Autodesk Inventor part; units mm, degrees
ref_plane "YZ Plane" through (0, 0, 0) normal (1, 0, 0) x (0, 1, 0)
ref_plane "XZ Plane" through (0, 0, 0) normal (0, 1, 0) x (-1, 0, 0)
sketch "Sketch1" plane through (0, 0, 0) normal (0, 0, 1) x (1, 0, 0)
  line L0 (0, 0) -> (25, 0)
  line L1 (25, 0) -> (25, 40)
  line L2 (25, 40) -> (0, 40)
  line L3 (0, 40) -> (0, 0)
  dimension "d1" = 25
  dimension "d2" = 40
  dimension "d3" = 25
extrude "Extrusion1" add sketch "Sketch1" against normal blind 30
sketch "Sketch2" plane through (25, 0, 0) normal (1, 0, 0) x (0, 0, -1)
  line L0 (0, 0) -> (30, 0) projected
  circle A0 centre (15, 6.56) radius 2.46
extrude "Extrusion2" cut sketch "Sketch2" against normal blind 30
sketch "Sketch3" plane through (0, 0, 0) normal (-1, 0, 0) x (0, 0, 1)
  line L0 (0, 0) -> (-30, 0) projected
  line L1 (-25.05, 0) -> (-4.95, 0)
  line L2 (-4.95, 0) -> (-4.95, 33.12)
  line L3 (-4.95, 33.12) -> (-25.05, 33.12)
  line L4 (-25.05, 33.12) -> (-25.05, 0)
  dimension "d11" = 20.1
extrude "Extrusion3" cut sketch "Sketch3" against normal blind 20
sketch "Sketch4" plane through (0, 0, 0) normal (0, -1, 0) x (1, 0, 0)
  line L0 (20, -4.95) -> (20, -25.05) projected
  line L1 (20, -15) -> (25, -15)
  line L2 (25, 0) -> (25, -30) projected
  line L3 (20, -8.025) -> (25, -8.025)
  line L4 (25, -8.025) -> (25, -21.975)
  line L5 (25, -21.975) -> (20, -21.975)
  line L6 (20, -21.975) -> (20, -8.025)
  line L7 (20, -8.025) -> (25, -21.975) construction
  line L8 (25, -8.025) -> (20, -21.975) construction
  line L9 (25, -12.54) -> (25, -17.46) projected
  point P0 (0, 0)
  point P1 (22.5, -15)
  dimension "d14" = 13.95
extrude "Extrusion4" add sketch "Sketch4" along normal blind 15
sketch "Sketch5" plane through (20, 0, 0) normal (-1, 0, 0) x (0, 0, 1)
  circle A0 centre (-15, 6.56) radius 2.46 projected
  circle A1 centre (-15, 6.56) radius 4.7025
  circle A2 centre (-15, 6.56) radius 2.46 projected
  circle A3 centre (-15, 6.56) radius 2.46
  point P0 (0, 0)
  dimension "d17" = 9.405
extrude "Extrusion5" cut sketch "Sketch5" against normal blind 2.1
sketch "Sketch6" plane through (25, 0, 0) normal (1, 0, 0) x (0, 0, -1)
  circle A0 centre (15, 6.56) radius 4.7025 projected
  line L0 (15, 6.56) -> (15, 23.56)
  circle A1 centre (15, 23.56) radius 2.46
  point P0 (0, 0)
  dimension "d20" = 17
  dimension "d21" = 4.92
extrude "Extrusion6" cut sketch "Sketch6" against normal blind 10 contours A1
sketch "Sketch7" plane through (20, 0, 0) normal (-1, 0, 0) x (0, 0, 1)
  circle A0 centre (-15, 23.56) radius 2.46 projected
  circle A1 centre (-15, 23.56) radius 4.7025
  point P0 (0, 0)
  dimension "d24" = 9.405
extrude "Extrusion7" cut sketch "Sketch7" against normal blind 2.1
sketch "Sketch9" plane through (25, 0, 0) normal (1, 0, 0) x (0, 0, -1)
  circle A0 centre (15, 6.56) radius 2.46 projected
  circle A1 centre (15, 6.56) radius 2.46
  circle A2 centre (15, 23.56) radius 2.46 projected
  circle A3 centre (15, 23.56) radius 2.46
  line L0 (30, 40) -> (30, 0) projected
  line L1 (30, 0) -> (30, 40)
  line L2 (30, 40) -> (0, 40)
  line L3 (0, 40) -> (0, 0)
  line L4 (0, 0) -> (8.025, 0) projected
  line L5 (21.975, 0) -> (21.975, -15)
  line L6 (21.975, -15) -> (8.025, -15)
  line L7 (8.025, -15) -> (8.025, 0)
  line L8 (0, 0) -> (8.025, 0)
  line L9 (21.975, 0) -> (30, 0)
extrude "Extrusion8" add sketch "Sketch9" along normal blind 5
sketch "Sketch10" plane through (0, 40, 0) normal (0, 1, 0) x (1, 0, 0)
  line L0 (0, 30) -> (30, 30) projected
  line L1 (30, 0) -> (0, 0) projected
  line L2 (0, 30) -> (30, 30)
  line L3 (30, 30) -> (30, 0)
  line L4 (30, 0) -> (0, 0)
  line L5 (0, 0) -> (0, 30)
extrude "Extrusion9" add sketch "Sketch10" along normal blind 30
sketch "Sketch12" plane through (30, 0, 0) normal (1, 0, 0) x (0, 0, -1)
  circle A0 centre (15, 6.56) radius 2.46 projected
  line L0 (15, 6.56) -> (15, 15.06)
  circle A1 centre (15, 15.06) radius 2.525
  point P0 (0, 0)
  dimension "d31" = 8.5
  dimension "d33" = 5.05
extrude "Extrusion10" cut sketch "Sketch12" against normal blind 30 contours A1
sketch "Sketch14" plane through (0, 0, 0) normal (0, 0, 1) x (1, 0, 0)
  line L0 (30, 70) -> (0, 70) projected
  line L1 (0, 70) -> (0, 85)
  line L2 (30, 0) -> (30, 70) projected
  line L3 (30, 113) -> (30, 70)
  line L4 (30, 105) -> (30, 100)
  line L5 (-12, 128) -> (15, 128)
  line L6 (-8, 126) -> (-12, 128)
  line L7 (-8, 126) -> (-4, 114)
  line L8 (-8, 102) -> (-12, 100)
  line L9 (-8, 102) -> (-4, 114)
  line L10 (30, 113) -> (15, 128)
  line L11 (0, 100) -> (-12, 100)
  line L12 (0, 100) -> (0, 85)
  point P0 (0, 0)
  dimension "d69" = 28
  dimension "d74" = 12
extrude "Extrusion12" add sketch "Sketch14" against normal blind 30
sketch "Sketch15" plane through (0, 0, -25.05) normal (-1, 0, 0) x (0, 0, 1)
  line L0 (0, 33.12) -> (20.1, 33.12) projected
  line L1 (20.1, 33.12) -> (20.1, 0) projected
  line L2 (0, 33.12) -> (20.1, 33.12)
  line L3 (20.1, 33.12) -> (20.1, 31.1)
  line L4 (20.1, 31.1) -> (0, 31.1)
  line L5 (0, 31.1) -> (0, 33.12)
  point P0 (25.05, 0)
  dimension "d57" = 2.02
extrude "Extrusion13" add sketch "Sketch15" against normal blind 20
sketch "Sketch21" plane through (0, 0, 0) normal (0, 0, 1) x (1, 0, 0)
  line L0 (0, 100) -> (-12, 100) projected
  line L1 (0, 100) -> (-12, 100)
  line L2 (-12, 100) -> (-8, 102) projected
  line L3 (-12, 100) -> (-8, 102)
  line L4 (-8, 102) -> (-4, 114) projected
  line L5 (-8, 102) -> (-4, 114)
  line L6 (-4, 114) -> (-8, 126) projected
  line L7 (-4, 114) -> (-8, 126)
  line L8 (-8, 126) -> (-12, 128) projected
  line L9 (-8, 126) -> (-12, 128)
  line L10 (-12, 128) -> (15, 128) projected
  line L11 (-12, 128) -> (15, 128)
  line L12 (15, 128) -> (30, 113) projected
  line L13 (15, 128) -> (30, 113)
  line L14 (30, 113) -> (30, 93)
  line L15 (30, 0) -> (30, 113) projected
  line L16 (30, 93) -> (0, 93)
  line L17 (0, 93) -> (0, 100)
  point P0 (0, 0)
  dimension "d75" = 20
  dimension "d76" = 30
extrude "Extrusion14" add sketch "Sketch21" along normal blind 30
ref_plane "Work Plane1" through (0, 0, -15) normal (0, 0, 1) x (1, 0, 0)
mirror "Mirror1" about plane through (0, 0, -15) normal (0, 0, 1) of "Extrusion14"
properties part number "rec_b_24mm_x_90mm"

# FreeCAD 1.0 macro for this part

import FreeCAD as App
import Part
import Sketcher

V = App.Vector
Q = App.Units.Quantity

doc = App.newDocument("Part")
body = doc.addObject("PartDesign::Body", "Body")

# Sketch on XY plane
sketch1 = body.newObject("Sketcher::SketchObject", "Sketch")
sketch1.AttachmentSupport = (doc.getObject("XY_Plane"), [""])
sketch1.MapMode = "FlatFace"
sketch1.addGeometry([
    Part.LineSegment(V(0, 40, 0), V(0, 0, 0)),
    Part.LineSegment(V(0, 0, 0), V(25, 0, 0)),
    Part.LineSegment(V(25, 0, 0), V(25, 40, 0)),
    Part.LineSegment(V(25, 40, 0), V(0, 40, 0)),
], False)
sketch1.addConstraint([
    Sketcher.Constraint("Coincident", 0, 2, 1, 1),
    Sketcher.Constraint("Coincident", 1, 2, 2, 1),
    Sketcher.Constraint("Coincident", 2, 2, 3, 1),
    Sketcher.Constraint("Coincident", 3, 2, 0, 1),
    Sketcher.Constraint("Vertical", 0),
    Sketcher.Constraint("Horizontal", 1),
    Sketcher.Constraint("Vertical", 2),
    Sketcher.Constraint("Horizontal", 3),
    Sketcher.Constraint("Coincident", 0, 2, -1, 1),
    Sketcher.Constraint("DistanceX", 1, 1, 1, 2, Q("25 mm")),
    Sketcher.Constraint("DistanceY", 0, 2, 0, 1, Q("40 mm")),
])
pad1 = body.newObject("PartDesign::Pad", "Pad")
pad1.Profile = sketch1
pad1.Length = 30
pad1.Reversed = True

# Sketch on YZ plane
sketch2 = body.newObject("Sketcher::SketchObject", "Sketch001")
sketch2.AttachmentSupport = (doc.getObject("YZ_Plane"), [""])
sketch2.MapMode = "FlatFace"
sketch2.AttachmentOffset = App.Placement(V(0, 0, 25), App.Rotation())
sketch2.addGeometry(Part.Circle(V(6.6, -15, 0), V(0, 0, 1), 2.5), False)
sketch2.addConstraint([
    Sketcher.Constraint("Diameter", 0, Q("4.92 mm")),
    Sketcher.Constraint("DistanceY", 0, 3, -1, 1, Q("15 mm")),
    Sketcher.Constraint("DistanceX", -1, 1, 0, 3, Q("6.56 mm")),
])
pocket1 = body.newObject("PartDesign::Pocket", "Pocket")
pocket1.Profile = sketch2
pocket1.Length = 30

# Sketch on YZ plane
sketch3 = body.newObject("Sketcher::SketchObject", "Sketch002")
sketch3.AttachmentSupport = (doc.getObject("YZ_Plane"), [""])
sketch3.MapMode = "FlatFace"
sketch3.addGeometry([
    Part.LineSegment(V(0, -25, 0), V(0, -5, 0)),
    Part.LineSegment(V(0, -5, 0), V(33, -5, 0)),
    Part.LineSegment(V(33, -5, 0), V(33, -25, 0)),
    Part.LineSegment(V(33, -25, 0), V(0, -25, 0)),
], False)
sketch3.addConstraint([
    Sketcher.Constraint("Coincident", 0, 2, 1, 1),
    Sketcher.Constraint("Coincident", 1, 2, 2, 1),
    Sketcher.Constraint("Coincident", 2, 2, 3, 1),
    Sketcher.Constraint("Coincident", 3, 2, 0, 1),
    Sketcher.Constraint("Vertical", 0),
    Sketcher.Constraint("Horizontal", 1),
    Sketcher.Constraint("Vertical", 2),
    Sketcher.Constraint("Horizontal", 3),
    Sketcher.Constraint("PointOnObject", 0, 2, -2),
    Sketcher.Constraint("DistanceY", 0, 1, 0, 2, Q("20.1 mm")),
    Sketcher.Constraint("DistanceX", 1, 1, 1, 2, Q("33.12 mm")),
    Sketcher.Constraint("DistanceY", 0, 2, -1, 1, Q("4.95 mm")),
])
pocket2 = body.newObject("PartDesign::Pocket", "Pocket001")
pocket2.Profile = sketch3
pocket2.Length = 20
pocket2.Reversed = True

# Sketch on XZ plane
sketch4 = body.newObject("Sketcher::SketchObject", "Sketch003")
sketch4.AttachmentSupport = (doc.getObject("XZ_Plane"), [""])
sketch4.MapMode = "FlatFace"
sketch4.addGeometry([
    Part.LineSegment(V(25, -8, 0), V(20, -8, 0)),
    Part.LineSegment(V(20, -8, 0), V(20, -22, 0)),
    Part.LineSegment(V(20, -22, 0), V(25, -22, 0)),
    Part.LineSegment(V(25, -22, 0), V(25, -8, 0)),
], False)
sketch4.addConstraint([
    Sketcher.Constraint("Coincident", 0, 2, 1, 1),
    Sketcher.Constraint("Coincident", 1, 2, 2, 1),
    Sketcher.Constraint("Coincident", 2, 2, 3, 1),
    Sketcher.Constraint("Coincident", 3, 2, 0, 1),
    Sketcher.Constraint("Horizontal", 0),
    Sketcher.Constraint("Vertical", 1),
    Sketcher.Constraint("Horizontal", 2),
    Sketcher.Constraint("Vertical", 3),
    Sketcher.Constraint("DistanceY", 1, 2, 1, 1, Q("13.95 mm")),
    Sketcher.Constraint("DistanceX", 0, 2, 0, 1, Q("5 mm")),
    Sketcher.Constraint("DistanceX", -1, 1, 0, 2, Q("20 mm")),
    Sketcher.Constraint("DistanceY", 0, 2, -1, 1, Q("8.025 mm")),
])
pad2 = body.newObject("PartDesign::Pad", "Pad001")
pad2.Profile = sketch4
pad2.Length = 15

# Sketch on YZ plane
sketch5 = body.newObject("Sketcher::SketchObject", "Sketch004")
sketch5.AttachmentSupport = (doc.getObject("YZ_Plane"), [""])
sketch5.MapMode = "FlatFace"
sketch5.AttachmentOffset = App.Placement(V(0, 0, 20), App.Rotation())
sketch5.addGeometry([
    Part.Circle(V(6.6, -15, 0), V(0, 0, 1), 4.7),
    Part.Circle(V(6.6, -15, 0), V(0, 0, 1), 2.5),
], False)
sketch5.addConstraint([
    Sketcher.Constraint("Coincident", 1, 3, 0, 3),
    Sketcher.Constraint("Diameter", 0, Q("9.405 mm")),
    Sketcher.Constraint("Diameter", 1, Q("4.92 mm")),
    Sketcher.Constraint("DistanceY", 0, 3, -1, 1, Q("15 mm")),
    Sketcher.Constraint("DistanceX", -1, 1, 0, 3, Q("6.56 mm")),
])
pocket3 = body.newObject("PartDesign::Pocket", "Pocket002")
pocket3.Profile = sketch5
pocket3.Length = 2.1
pocket3.Reversed = True

# Sketch on YZ plane
sketch6 = body.newObject("Sketcher::SketchObject", "Sketch005")
sketch6.AttachmentSupport = (doc.getObject("YZ_Plane"), [""])
sketch6.MapMode = "FlatFace"
sketch6.AttachmentOffset = App.Placement(V(0, 0, 25), App.Rotation())
sketch6.addGeometry(Part.Circle(V(23.6, -15, 0), V(0, 0, 1), 2.5), False)
sketch6.addConstraint([
    Sketcher.Constraint("Diameter", 0, Q("4.92 mm")),
    Sketcher.Constraint("DistanceY", 0, 3, -1, 1, Q("15 mm")),
    Sketcher.Constraint("DistanceX", -1, 1, 0, 3, Q("23.56 mm")),
])
pocket4 = body.newObject("PartDesign::Pocket", "Pocket003")
pocket4.Profile = sketch6
pocket4.Length = 10

# Sketch on YZ plane
sketch7 = body.newObject("Sketcher::SketchObject", "Sketch006")
sketch7.AttachmentSupport = (doc.getObject("YZ_Plane"), [""])
sketch7.MapMode = "FlatFace"
sketch7.AttachmentOffset = App.Placement(V(0, 0, 20), App.Rotation())
sketch7.addGeometry([
    Part.Circle(V(23.6, -15, 0), V(0, 0, 1), 4.7),
    Part.Circle(V(23.6, -15, 0), V(0, 0, 1), 2.5),
], False)
sketch7.addConstraint([
    Sketcher.Constraint("Coincident", 1, 3, 0, 3),
    Sketcher.Constraint("Diameter", 0, Q("9.405 mm")),
    Sketcher.Constraint("Diameter", 1, Q("4.92 mm")),
    Sketcher.Constraint("DistanceY", 0, 3, -1, 1, Q("15 mm")),
    Sketcher.Constraint("DistanceX", -1, 1, 0, 3, Q("23.56 mm")),
])
pocket5 = body.newObject("PartDesign::Pocket", "Pocket004")
pocket5.Profile = sketch7
pocket5.Length = 2.1
pocket5.Reversed = True

# Sketch on YZ plane
sketch8 = body.newObject("Sketcher::SketchObject", "Sketch007")
sketch8.AttachmentSupport = (doc.getObject("YZ_Plane"), [""])
sketch8.MapMode = "FlatFace"
sketch8.AttachmentOffset = App.Placement(V(0, 0, 25), App.Rotation())
sketch8.addGeometry([
    Part.LineSegment(V(0, -30, 0), V(40, -30, 0)),  # 0
    Part.LineSegment(V(40, -30, 0), V(40, 0, 0)),  # 1
    Part.LineSegment(V(40, 0, 0), V(0, 0, 0)),  # 2
    Part.LineSegment(V(0, 0, 0), V(0, -8, 0)),  # 3
    Part.LineSegment(V(0, -8, 0), V(-15, -8, 0)),  # 4
    Part.LineSegment(V(-15, -8, 0), V(-15, -22, 0)),  # 5
    Part.LineSegment(V(-15, -22, 0), V(0, -22, 0)),  # 6
    Part.LineSegment(V(0, -22, 0), V(0, -30, 0)),  # 7
    Part.Circle(V(6.6, -15, 0), V(0, 0, 1), 2.5),  # 8
    Part.Circle(V(23.6, -15, 0), V(0, 0, 1), 2.5),  # 9
], False)
sketch8.addConstraint([
    Sketcher.Constraint("Coincident", 0, 2, 1, 1),
    Sketcher.Constraint("Coincident", 1, 2, 2, 1),
    Sketcher.Constraint("Coincident", 2, 2, 3, 1),
    Sketcher.Constraint("Coincident", 3, 2, 4, 1),
    Sketcher.Constraint("Coincident", 4, 2, 5, 1),
    Sketcher.Constraint("Coincident", 5, 2, 6, 1),
    Sketcher.Constraint("Coincident", 6, 2, 7, 1),
    Sketcher.Constraint("Coincident", 7, 2, 0, 1),
    Sketcher.Constraint("Horizontal", 0),
    Sketcher.Constraint("Vertical", 1),
    Sketcher.Constraint("Horizontal", 2),
    Sketcher.Constraint("Vertical", 3),
    Sketcher.Constraint("Horizontal", 4),
    Sketcher.Constraint("Vertical", 5),
    Sketcher.Constraint("Horizontal", 6),
    Sketcher.Constraint("Vertical", 7),
    Sketcher.Constraint("Coincident", 2, 2, -1, 1),
    Sketcher.Constraint("Equal", 8, 9),
    Sketcher.Constraint("PointOnObject", 6, 2, -2),
    Sketcher.Constraint("Horizontal", 8, 3, 9, 3),
    Sketcher.Constraint("Equal", 3, 7),
    Sketcher.Constraint("Diameter", 8, Q("4.92 mm")),
    Sketcher.Constraint("DistanceX", 0, 1, 0, 2, Q("40 mm")),
    Sketcher.Constraint("DistanceX", 4, 2, 4, 1, Q("15 mm")),
    Sketcher.Constraint("DistanceY", 1, 1, 1, 2, Q("30 mm")),
    Sketcher.Constraint("DistanceY", 8, 3, -1, 1, Q("15 mm")),
    Sketcher.Constraint("DistanceX", 8, 3, 9, 3, Q("17 mm")),
    Sketcher.Constraint("DistanceY", 5, 2, 5, 1, Q("13.95 mm")),
    Sketcher.Constraint("DistanceX", -1, 1, 8, 3, Q("6.56 mm")),
])
pad3 = body.newObject("PartDesign::Pad", "Pad002")
pad3.Profile = sketch8
pad3.Length = 5

# Sketch on XZ plane
sketch9 = body.newObject("Sketcher::SketchObject", "Sketch008")
sketch9.AttachmentSupport = (doc.getObject("XZ_Plane"), [""])
sketch9.MapMode = "FlatFace"
sketch9.AttachmentOffset = App.Placement(V(0, 0, -40), App.Rotation())
sketch9.addGeometry([
    Part.LineSegment(V(30, -30, 0), V(0, -30, 0)),
    Part.LineSegment(V(0, -30, 0), V(0, 0, 0)),
    Part.LineSegment(V(0, 0, 0), V(30, 0, 0)),
    Part.LineSegment(V(30, 0, 0), V(30, -30, 0)),
], False)
sketch9.addConstraint([
    Sketcher.Constraint("Coincident", 0, 2, 1, 1),
    Sketcher.Constraint("Coincident", 1, 2, 2, 1),
    Sketcher.Constraint("Coincident", 2, 2, 3, 1),
    Sketcher.Constraint("Coincident", 3, 2, 0, 1),
    Sketcher.Constraint("Horizontal", 0),
    Sketcher.Constraint("Vertical", 1),
    Sketcher.Constraint("Horizontal", 2),
    Sketcher.Constraint("Vertical", 3),
    Sketcher.Constraint("Coincident", 1, 2, -1, 1),
    Sketcher.Constraint("Equal", 2, 1),
    Sketcher.Constraint("DistanceX", 0, 2, 0, 1, Q("30 mm")),
])
pad4 = body.newObject("PartDesign::Pad", "Pad003")
pad4.Profile = sketch9
pad4.Length = 30
pad4.Reversed = True

# Sketch on YZ plane
sketch10 = body.newObject("Sketcher::SketchObject", "Sketch009")
sketch10.AttachmentSupport = (doc.getObject("YZ_Plane"), [""])
sketch10.MapMode = "FlatFace"
sketch10.AttachmentOffset = App.Placement(V(0, 0, 30), App.Rotation())
sketch10.addGeometry(Part.Circle(V(15.1, -15, 0), V(0, 0, 1), 2.5), False)
sketch10.addConstraint([
    Sketcher.Constraint("Diameter", 0, Q("5.05 mm")),
    Sketcher.Constraint("DistanceY", 0, 3, -1, 1, Q("15 mm")),
    Sketcher.Constraint("DistanceX", -1, 1, 0, 3, Q("15.06 mm")),
])
pocket6 = body.newObject("PartDesign::Pocket", "Pocket005")
pocket6.Profile = sketch10
pocket6.Length = 30

# Sketch on XY plane
sketch11 = body.newObject("Sketcher::SketchObject", "Sketch010")
sketch11.AttachmentSupport = (doc.getObject("XY_Plane"), [""])
sketch11.MapMode = "FlatFace"
sketch11.addGeometry([
    Part.LineSegment(V(0, 70, 0), V(30, 70, 0)),  # 0
    Part.LineSegment(V(30, 70, 0), V(30, 113, 0)),  # 1
    Part.LineSegment(V(30, 113, 0), V(15, 128, 0)),  # 2
    Part.LineSegment(V(15, 128, 0), V(-12, 128, 0)),  # 3
    Part.LineSegment(V(-12, 128, 0), V(-8, 126, 0)),  # 4
    Part.LineSegment(V(-8, 126, 0), V(-4, 114, 0)),  # 5
    Part.LineSegment(V(-4, 114, 0), V(-8, 102, 0)),  # 6
    Part.LineSegment(V(-8, 102, 0), V(-12, 100, 0)),  # 7
    Part.LineSegment(V(-12, 100, 0), V(0, 100, 0)),  # 8
    Part.LineSegment(V(0, 100, 0), V(0, 70, 0)),  # 9
], False)
sketch11.addConstraint([
    Sketcher.Constraint("Coincident", 0, 2, 1, 1),
    Sketcher.Constraint("Coincident", 1, 2, 2, 1),
    Sketcher.Constraint("Coincident", 2, 2, 3, 1),
    Sketcher.Constraint("Coincident", 3, 2, 4, 1),
    Sketcher.Constraint("Coincident", 4, 2, 5, 1),
    Sketcher.Constraint("Coincident", 5, 2, 6, 1),
    Sketcher.Constraint("Coincident", 6, 2, 7, 1),
    Sketcher.Constraint("Coincident", 7, 2, 8, 1),
    Sketcher.Constraint("Coincident", 8, 2, 9, 1),
    Sketcher.Constraint("Coincident", 9, 2, 0, 1),
    Sketcher.Constraint("Horizontal", 0),
    Sketcher.Constraint("Vertical", 1),
    Sketcher.Constraint("Horizontal", 3),
    Sketcher.Constraint("Horizontal", 8),
    Sketcher.Constraint("Vertical", 9),
    Sketcher.Constraint("PointOnObject", 8, 2, -2),
    Sketcher.Constraint("Vertical", 4, 2, 6, 2),
    Sketcher.Constraint("Vertical", 3, 2, 7, 2),
    Sketcher.Constraint("Equal", 0, 9),
    Sketcher.Constraint("Equal", 5, 6),
    Sketcher.Constraint("Equal", 4, 7),
    Sketcher.Constraint("DistanceX", 8, 1, 8, 2, Q("12 mm")),
    Sketcher.Constraint("DistanceY", 5, 2, 4, 2, Q("12 mm")),
    Sketcher.Constraint("DistanceY", 7, 2, 3, 2, Q("28 mm")),
    Sketcher.Constraint("DistanceX", 0, 1, 0, 2, Q("30 mm")),
    Sketcher.Constraint("DistanceX", 3, 2, 3, 1, Q("27 mm")),
    Sketcher.Constraint("DistanceY", 1, 1, 1, 2, Q("43 mm")),
    Sketcher.Constraint("DistanceY", -1, 1, 0, 2, Q("70 mm")),
    Sketcher.Constraint("DistanceX", 4, 2, -1, 1, Q("8 mm")),
    Sketcher.Constraint("DistanceX", 5, 2, -1, 1, Q("4 mm")),
])
pad5 = body.newObject("PartDesign::Pad", "Pad004")
pad5.Profile = sketch11
pad5.Length = 30
pad5.Reversed = True

# Sketch on YZ plane
sketch12 = body.newObject("Sketcher::SketchObject", "Sketch011")
sketch12.AttachmentSupport = (doc.getObject("YZ_Plane"), [""])
sketch12.MapMode = "FlatFace"
sketch12.addGeometry([
    Part.LineSegment(V(33.1, -5, 0), V(33.1, -25.1, 0)),
    Part.LineSegment(V(33.1, -25.1, 0), V(31.1, -25.1, 0)),
    Part.LineSegment(V(31.1, -25.1, 0), V(31.1, -5, 0)),
    Part.LineSegment(V(31.1, -5, 0), V(33.1, -5, 0)),
], False)
sketch12.addConstraint([
    Sketcher.Constraint("Coincident", 0, 2, 1, 1),
    Sketcher.Constraint("Coincident", 1, 2, 2, 1),
    Sketcher.Constraint("Coincident", 2, 2, 3, 1),
    Sketcher.Constraint("Coincident", 3, 2, 0, 1),
    Sketcher.Constraint("Vertical", 0),
    Sketcher.Constraint("Horizontal", 1),
    Sketcher.Constraint("Vertical", 2),
    Sketcher.Constraint("Horizontal", 3),
    Sketcher.Constraint("DistanceX", 1, 2, 1, 1, Q("2.02 mm")),
    Sketcher.Constraint("DistanceY", 0, 2, 0, 1, Q("20.1 mm")),
    Sketcher.Constraint("DistanceX", -1, 1, 1, 2, Q("31.1 mm")),
    Sketcher.Constraint("DistanceY", 0, 2, -1, 1, Q("25.05 mm")),
])
pad6 = body.newObject("PartDesign::Pad", "Pad005")
pad6.Profile = sketch12
pad6.Length = 20

# Sketch on XY plane
sketch13 = body.newObject("Sketcher::SketchObject", "Sketch012")
sketch13.AttachmentSupport = (doc.getObject("XY_Plane"), [""])
sketch13.MapMode = "FlatFace"
sketch13.addGeometry([
    Part.LineSegment(V(-12, 100, 0), V(0, 100, 0)),  # 0
    Part.LineSegment(V(0, 100, 0), V(0, 93, 0)),  # 1
    Part.LineSegment(V(0, 93, 0), V(30, 93, 0)),  # 2
    Part.LineSegment(V(30, 93, 0), V(30, 113, 0)),  # 3
    Part.LineSegment(V(30, 113, 0), V(15, 128, 0)),  # 4
    Part.LineSegment(V(15, 128, 0), V(-12, 128, 0)),  # 5
    Part.LineSegment(V(-12, 128, 0), V(-8, 126, 0)),  # 6
    Part.LineSegment(V(-8, 126, 0), V(-4, 114, 0)),  # 7
    Part.LineSegment(V(-4, 114, 0), V(-8, 102, 0)),  # 8
    Part.LineSegment(V(-8, 102, 0), V(-12, 100, 0)),  # 9
], False)
sketch13.addConstraint([
    Sketcher.Constraint("Coincident", 0, 2, 1, 1),
    Sketcher.Constraint("Coincident", 1, 2, 2, 1),
    Sketcher.Constraint("Coincident", 2, 2, 3, 1),
    Sketcher.Constraint("Coincident", 3, 2, 4, 1),
    Sketcher.Constraint("Coincident", 4, 2, 5, 1),
    Sketcher.Constraint("Coincident", 5, 2, 6, 1),
    Sketcher.Constraint("Coincident", 6, 2, 7, 1),
    Sketcher.Constraint("Coincident", 7, 2, 8, 1),
    Sketcher.Constraint("Coincident", 8, 2, 9, 1),
    Sketcher.Constraint("Coincident", 9, 2, 0, 1),
    Sketcher.Constraint("Horizontal", 0),
    Sketcher.Constraint("Vertical", 1),
    Sketcher.Constraint("Horizontal", 2),
    Sketcher.Constraint("Vertical", 3),
    Sketcher.Constraint("Horizontal", 5),
    Sketcher.Constraint("PointOnObject", 0, 2, -2),
    Sketcher.Constraint("Vertical", 6, 2, 8, 2),
    Sketcher.Constraint("Vertical", 5, 2, 9, 2),
    Sketcher.Constraint("Equal", 7, 8),
    Sketcher.Constraint("Equal", 6, 9),
    Sketcher.Constraint("DistanceX", 2, 1, 2, 2, Q("30 mm")),
    Sketcher.Constraint("DistanceY", 3, 1, 3, 2, Q("20 mm")),
    Sketcher.Constraint("DistanceX", 0, 1, 0, 2, Q("12 mm")),
    Sketcher.Constraint("DistanceX", 5, 2, 5, 1, Q("27 mm")),
    Sketcher.Constraint("DistanceY", 1, 2, 1, 1, Q("7 mm")),
    Sketcher.Constraint("Angle", 4, Q("135 deg")),
    Sketcher.Constraint("DistanceY", -1, 1, 0, 2, Q("100 mm")),
    Sketcher.Constraint("DistanceX", 6, 2, -1, 1, Q("8 mm")),
    Sketcher.Constraint("DistanceY", -1, 1, 6, 2, Q("126 mm")),
    Sketcher.Constraint("DistanceX", 7, 2, -1, 1, Q("4 mm")),
])
pad7 = body.newObject("PartDesign::Pad", "Pad006")
pad7.Profile = sketch13
pad7.Length = 30
doc.recompute()

datumplane = body.newObject("PartDesign::Plane", "DatumPlane")
datumplane.AttachmentSupport = (doc.getObject("XY_Plane"), [""])
datumplane.MapMode = "FlatFace"
datumplane.AttachmentOffset = App.Placement(V(0, 0, -15), App.Rotation())
mirrored = body.newObject("PartDesign::Mirrored", "Mirrored")
mirrored.Originals = [pad7]
mirrored.MirrorPlane = (datumplane, [""])
body.Tip = mirrored

doc.recompute()
